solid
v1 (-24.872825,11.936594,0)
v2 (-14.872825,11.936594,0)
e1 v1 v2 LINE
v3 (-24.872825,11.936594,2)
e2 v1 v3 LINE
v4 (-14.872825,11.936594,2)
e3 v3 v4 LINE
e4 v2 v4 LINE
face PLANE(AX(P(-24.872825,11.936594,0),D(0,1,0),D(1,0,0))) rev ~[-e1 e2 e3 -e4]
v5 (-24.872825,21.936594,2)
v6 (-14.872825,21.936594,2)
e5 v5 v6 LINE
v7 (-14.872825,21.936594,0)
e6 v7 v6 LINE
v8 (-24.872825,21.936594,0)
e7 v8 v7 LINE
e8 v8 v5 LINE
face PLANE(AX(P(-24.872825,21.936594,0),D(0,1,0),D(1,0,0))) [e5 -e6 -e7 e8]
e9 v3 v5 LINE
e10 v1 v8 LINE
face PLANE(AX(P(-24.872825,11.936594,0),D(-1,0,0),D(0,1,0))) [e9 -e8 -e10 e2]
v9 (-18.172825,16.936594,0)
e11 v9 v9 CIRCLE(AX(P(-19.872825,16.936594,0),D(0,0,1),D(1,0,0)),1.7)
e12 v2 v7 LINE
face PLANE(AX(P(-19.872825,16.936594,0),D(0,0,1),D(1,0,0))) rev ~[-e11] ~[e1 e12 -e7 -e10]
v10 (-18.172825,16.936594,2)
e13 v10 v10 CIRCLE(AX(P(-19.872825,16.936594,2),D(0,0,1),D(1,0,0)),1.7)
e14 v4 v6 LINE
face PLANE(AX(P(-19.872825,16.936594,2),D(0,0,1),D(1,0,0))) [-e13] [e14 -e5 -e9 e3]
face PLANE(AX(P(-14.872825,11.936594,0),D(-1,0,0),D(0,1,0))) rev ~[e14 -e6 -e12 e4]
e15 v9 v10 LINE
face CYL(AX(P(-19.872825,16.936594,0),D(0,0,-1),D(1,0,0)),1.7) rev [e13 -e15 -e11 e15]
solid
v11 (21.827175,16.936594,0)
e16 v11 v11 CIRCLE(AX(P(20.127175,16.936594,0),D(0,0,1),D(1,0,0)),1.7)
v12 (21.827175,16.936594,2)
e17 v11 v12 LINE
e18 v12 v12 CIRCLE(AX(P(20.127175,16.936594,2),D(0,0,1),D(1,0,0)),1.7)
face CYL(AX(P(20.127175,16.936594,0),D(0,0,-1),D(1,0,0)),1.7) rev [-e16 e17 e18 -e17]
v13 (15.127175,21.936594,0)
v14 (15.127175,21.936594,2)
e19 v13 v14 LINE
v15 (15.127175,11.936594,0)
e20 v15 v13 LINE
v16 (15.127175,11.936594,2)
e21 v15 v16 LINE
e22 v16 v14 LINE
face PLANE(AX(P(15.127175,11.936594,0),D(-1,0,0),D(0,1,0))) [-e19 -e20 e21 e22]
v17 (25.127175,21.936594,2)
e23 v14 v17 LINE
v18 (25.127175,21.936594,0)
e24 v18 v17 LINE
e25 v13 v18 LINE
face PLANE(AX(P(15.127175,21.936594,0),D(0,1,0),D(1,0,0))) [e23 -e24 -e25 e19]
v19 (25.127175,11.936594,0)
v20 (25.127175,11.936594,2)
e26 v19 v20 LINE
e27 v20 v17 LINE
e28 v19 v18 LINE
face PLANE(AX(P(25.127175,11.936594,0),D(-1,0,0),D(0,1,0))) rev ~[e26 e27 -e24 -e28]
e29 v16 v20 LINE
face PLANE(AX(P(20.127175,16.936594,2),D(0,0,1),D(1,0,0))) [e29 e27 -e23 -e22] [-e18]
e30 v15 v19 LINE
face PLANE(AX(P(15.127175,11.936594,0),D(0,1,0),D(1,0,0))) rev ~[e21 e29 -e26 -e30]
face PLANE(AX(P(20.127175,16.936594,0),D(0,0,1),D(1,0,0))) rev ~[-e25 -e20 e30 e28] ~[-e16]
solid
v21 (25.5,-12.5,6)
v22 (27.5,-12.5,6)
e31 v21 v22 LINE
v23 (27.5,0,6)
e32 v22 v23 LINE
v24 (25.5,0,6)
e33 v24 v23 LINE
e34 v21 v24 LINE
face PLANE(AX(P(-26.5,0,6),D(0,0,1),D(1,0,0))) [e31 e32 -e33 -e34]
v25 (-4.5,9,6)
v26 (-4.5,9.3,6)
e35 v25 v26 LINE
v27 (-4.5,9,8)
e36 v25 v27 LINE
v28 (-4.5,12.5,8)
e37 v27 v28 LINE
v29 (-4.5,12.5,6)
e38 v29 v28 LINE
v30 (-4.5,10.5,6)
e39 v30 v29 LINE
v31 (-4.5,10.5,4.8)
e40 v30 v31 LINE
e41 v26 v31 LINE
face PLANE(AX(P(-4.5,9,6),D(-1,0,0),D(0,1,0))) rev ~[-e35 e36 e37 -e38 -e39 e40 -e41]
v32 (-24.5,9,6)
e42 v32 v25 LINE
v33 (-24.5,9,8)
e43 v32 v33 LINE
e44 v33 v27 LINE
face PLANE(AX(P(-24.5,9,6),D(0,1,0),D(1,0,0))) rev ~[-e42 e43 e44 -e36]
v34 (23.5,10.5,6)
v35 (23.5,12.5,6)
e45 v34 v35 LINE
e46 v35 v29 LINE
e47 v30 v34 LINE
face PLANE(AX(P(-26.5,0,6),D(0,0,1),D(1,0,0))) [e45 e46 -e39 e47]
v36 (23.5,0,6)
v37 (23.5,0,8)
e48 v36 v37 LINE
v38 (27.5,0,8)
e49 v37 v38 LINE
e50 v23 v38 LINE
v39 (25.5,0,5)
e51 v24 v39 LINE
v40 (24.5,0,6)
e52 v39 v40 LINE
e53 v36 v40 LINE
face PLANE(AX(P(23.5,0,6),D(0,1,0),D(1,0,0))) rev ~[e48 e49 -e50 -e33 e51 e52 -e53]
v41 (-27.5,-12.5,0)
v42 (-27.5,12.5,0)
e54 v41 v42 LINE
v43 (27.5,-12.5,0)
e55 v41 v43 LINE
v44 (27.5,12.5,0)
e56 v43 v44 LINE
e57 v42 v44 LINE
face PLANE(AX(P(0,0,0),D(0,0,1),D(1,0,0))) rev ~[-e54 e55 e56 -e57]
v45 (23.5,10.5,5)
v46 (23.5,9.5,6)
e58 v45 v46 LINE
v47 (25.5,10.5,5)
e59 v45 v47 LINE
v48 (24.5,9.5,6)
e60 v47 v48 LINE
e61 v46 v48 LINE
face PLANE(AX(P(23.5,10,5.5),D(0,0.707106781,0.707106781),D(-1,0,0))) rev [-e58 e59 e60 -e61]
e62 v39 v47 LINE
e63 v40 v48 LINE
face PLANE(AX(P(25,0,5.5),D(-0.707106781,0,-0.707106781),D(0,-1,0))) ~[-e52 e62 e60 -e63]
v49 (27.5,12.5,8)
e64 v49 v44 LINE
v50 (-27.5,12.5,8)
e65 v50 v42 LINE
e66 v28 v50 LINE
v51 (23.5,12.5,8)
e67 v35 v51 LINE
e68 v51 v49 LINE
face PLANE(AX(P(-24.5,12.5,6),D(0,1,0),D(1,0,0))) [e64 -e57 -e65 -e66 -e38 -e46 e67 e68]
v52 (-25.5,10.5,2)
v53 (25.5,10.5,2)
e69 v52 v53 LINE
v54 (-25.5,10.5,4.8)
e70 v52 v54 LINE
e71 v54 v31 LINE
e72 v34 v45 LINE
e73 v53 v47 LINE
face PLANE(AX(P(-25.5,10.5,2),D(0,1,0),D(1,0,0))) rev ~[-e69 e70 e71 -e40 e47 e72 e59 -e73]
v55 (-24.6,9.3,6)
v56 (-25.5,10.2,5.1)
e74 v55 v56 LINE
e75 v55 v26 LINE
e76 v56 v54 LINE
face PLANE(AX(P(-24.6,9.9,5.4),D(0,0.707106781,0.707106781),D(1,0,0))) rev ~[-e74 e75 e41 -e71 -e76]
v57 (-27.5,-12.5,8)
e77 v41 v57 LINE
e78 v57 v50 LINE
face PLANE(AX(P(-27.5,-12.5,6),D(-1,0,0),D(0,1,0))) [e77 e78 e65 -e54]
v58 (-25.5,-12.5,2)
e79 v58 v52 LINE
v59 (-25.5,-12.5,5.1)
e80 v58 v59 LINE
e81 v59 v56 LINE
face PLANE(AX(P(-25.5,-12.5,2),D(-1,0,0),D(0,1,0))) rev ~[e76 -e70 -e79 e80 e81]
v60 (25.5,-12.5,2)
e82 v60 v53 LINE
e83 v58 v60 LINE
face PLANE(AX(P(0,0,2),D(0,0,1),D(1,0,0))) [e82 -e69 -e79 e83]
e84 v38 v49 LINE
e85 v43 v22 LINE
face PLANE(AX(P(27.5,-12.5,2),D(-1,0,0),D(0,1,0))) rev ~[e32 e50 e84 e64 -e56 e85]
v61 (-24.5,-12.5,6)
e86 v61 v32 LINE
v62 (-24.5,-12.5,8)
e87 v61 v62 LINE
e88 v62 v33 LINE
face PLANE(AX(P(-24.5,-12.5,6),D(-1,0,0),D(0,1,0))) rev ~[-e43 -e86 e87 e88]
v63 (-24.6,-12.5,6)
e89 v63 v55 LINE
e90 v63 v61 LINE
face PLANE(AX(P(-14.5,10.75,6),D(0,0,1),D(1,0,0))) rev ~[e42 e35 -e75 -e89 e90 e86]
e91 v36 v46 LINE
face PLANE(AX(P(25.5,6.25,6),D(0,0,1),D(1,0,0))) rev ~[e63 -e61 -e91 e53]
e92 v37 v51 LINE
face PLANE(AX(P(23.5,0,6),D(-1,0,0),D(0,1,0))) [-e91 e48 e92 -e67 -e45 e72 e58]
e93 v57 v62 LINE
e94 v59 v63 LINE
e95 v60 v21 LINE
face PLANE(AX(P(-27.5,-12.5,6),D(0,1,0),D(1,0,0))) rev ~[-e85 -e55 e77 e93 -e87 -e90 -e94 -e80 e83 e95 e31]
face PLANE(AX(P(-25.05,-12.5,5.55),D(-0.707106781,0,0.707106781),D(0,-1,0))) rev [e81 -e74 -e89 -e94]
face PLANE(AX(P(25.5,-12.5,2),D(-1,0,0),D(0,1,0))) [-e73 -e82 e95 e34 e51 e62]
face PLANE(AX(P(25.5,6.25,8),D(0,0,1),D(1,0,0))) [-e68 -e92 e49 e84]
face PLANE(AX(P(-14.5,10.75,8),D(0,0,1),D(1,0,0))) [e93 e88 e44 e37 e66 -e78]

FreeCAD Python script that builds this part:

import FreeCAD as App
import Part
import Sketcher
from FreeCAD import Vector
Q = App.Units.Quantity


def edges_at(feature, points):
    """Names of the edges that pass closest to the given points."""
    edges = feature.Shape.Edges
    near = lambda p: min(range(len(edges)), key=lambda i: edges[i].distToShape(Part.Vertex(*p))[0])
    return sorted({f"Edge{near(p) + 1}" for p in points})

doc = App.newDocument("Part")
body = doc.addObject("PartDesign::Body", "Body")
body.AllowCompound = True

# Sketch on XY plane
sketch1 = body.newObject("Sketcher::SketchObject", "Sketch")
sketch1.AttachmentSupport = (doc.getObject("XY_Plane"), [""])
sketch1.MapMode = "FlatFace"
sketch1.addGeometry([
    Part.LineSegment(Vector(-24.9, 21.9, 0), Vector(-24.9, 11.9, 0)),  # 0
    Part.LineSegment(Vector(-24.9, 11.9, 0), Vector(-14.9, 11.9, 0)),  # 1
    Part.LineSegment(Vector(-14.9, 11.9, 0), Vector(-14.9, 21.9, 0)),  # 2
    Part.LineSegment(Vector(-14.9, 21.9, 0), Vector(-24.9, 21.9, 0)),  # 3
    Part.Circle(Vector(-19.9, 16.9, 0), Vector(0, 0, 1), 1.7),  # 4
    Part.LineSegment(Vector(15.1, 21.9, 0), Vector(15.1, 11.9, 0)),  # 5
    Part.LineSegment(Vector(15.1, 11.9, 0), Vector(25.1, 11.9, 0)),  # 6
    Part.LineSegment(Vector(25.1, 11.9, 0), Vector(25.1, 21.9, 0)),  # 7
    Part.LineSegment(Vector(25.1, 21.9, 0), Vector(15.1, 21.9, 0)),  # 8
    Part.Circle(Vector(20.1, 16.9, 0), Vector(0, 0, 1), 1.7),  # 9
], False)
sketch1.addConstraint([
    Sketcher.Constraint("Coincident", 0, 2, 1, 1),
    Sketcher.Constraint("Coincident", 1, 2, 2, 1),
    Sketcher.Constraint("Coincident", 2, 2, 3, 1),
    Sketcher.Constraint("Coincident", 3, 2, 0, 1),
    Sketcher.Constraint("Coincident", 5, 2, 6, 1),
    Sketcher.Constraint("Coincident", 6, 2, 7, 1),
    Sketcher.Constraint("Coincident", 7, 2, 8, 1),
    Sketcher.Constraint("Coincident", 8, 2, 5, 1),
    Sketcher.Constraint("Vertical", 0),
    Sketcher.Constraint("Horizontal", 1),
    Sketcher.Constraint("Vertical", 2),
    Sketcher.Constraint("Horizontal", 3),
    Sketcher.Constraint("Vertical", 5),
    Sketcher.Constraint("Horizontal", 6),
    Sketcher.Constraint("Vertical", 7),
    Sketcher.Constraint("Horizontal", 8),
    Sketcher.Constraint("Equal", 4, 9),
    Sketcher.Constraint("Horizontal", 4, 3, 9, 3),
    Sketcher.Constraint("Horizontal", 1, 2, 5, 2),
    Sketcher.Constraint("Horizontal", 3, 2, 7, 2),
    Sketcher.Constraint("Equal", 3, 6),
    Sketcher.Constraint("Equal", 8, 0),
    Sketcher.Constraint("Diameter", 4, Q("3.4 mm")),
    Sketcher.Constraint("DistanceX", 1, 1, 1, 2, Q("10 mm")),
    Sketcher.Constraint("DistanceX", 4, 3, 9, 3, Q("40 mm")),
    Sketcher.Constraint("DistanceX", 0, 2, 4, 3, Q("5 mm")),
    Sketcher.Constraint("DistanceY", 0, 2, 4, 3, Q("5 mm")),
    Sketcher.Constraint("DistanceX", 5, 2, 9, 3, Q("5 mm")),
    Sketcher.Constraint("DistanceX", 4, 3, -1, 1, Q("19.872825 mm")),
    Sketcher.Constraint("DistanceY", -1, 1, 4, 3, Q("16.936594 mm")),
])
pad1 = body.newObject("PartDesign::Pad", "Pad")
pad1.Profile = sketch1
pad1.Length = 2
body2 = doc.addObject("PartDesign::Body", "Body001")

# Sketch on XY plane
sketch2 = body2.newObject("Sketcher::SketchObject", "Sketch001")
sketch2.AttachmentSupport = (doc.getObject("XY_Plane001"), [""])
sketch2.MapMode = "FlatFace"
sketch2.addGeometry([
    Part.LineSegment(Vector(-28, 12, 0), Vector(-28, -12, 0)),
    Part.LineSegment(Vector(-28, -12, 0), Vector(28, -12, 0)),
    Part.LineSegment(Vector(28, -12, 0), Vector(28, 12, 0)),
    Part.LineSegment(Vector(28, 12, 0), Vector(-28, 12, 0)),
], False)
sketch2.addConstraint([
    Sketcher.Constraint("Coincident", 0, 2, 1, 1),
    Sketcher.Constraint("Coincident", 1, 2, 2, 1),
    Sketcher.Constraint("Coincident", 2, 2, 3, 1),
    Sketcher.Constraint("Coincident", 3, 2, 0, 1),
    Sketcher.Constraint("Vertical", 0),
    Sketcher.Constraint("Horizontal", 1),
    Sketcher.Constraint("Vertical", 2),
    Sketcher.Constraint("Horizontal", 3),
    Sketcher.Constraint("Symmetric", 0, 2, 2, 2, -1, 1),
    Sketcher.Constraint("DistanceX", 1, 1, 1, 2, Q("55 mm")),
    Sketcher.Constraint("DistanceY", 0, 2, 0, 1, Q("25 mm")),
])
pad2 = body2.newObject("PartDesign::Pad", "Pad001")
pad2.Profile = sketch2
pad2.Length = 2

# Sketch on XY plane
sketch3 = body2.newObject("Sketcher::SketchObject", "Sketch002")
sketch3.AttachmentSupport = (doc.getObject("XY_Plane001"), [""])
sketch3.MapMode = "FlatFace"
sketch3.AttachmentOffset = App.Placement(Vector(0, 0, 2), App.Rotation())
sketch3.addGeometry([
    Part.LineSegment(Vector(-27.5, 12.5, 0), Vector(-27.5, -12.5, 0)),  # 0
    Part.LineSegment(Vector(-27.5, -12.5, 0), Vector(-25.5, -12.5, 0)),  # 1
    Part.LineSegment(Vector(-25.5, -12.5, 0), Vector(-25.5, 10.5, 0)),  # 2
    Part.LineSegment(Vector(-25.5, 10.5, 0), Vector(25.5, 10.5, 0)),  # 3
    Part.LineSegment(Vector(25.5, 10.5, 0), Vector(25.5, -12.5, 0)),  # 4
    Part.LineSegment(Vector(25.5, -12.5, 0), Vector(27.5, -12.5, 0)),  # 5
    Part.LineSegment(Vector(27.5, -12.5, 0), Vector(27.5, 12.5, 0)),  # 6
    Part.LineSegment(Vector(27.5, 12.5, 0), Vector(-27.5, 12.5, 0)),  # 7
], False)
sketch3.addConstraint([
    Sketcher.Constraint("Coincident", 0, 2, 1, 1),
    Sketcher.Constraint("Coincident", 1, 2, 2, 1),
    Sketcher.Constraint("Coincident", 2, 2, 3, 1),
    Sketcher.Constraint("Coincident", 3, 2, 4, 1),
    Sketcher.Constraint("Coincident", 4, 2, 5, 1),
    Sketcher.Constraint("Coincident", 5, 2, 6, 1),
    Sketcher.Constraint("Coincident", 6, 2, 7, 1),
    Sketcher.Constraint("Coincident", 7, 2, 0, 1),
    Sketcher.Constraint("Vertical", 0),
    Sketcher.Constraint("Horizontal", 1),
    Sketcher.Constraint("Vertical", 2),
    Sketcher.Constraint("Horizontal", 3),
    Sketcher.Constraint("Vertical", 4),
    Sketcher.Constraint("Horizontal", 5),
    Sketcher.Constraint("Vertical", 6),
    Sketcher.Constraint("Horizontal", 7),
    Sketcher.Constraint("Symmetric", 0, 2, 6, 2, -1, 1),
    Sketcher.Constraint("Symmetric", 1, 2, 4, 2, -2),
    Sketcher.Constraint("DistanceX", 1, 1, 1, 2, Q("2 mm")),
    Sketcher.Constraint("DistanceX", 3, 1, 3, 2, Q("51 mm")),
    Sketcher.Constraint("DistanceY", 0, 2, 0, 1, Q("25 mm")),
    Sketcher.Constraint("DistanceY", 2, 1, 2, 2, Q("23 mm")),
])
pad3 = body2.newObject("PartDesign::Pad", "Pad002")
pad3.Profile = sketch3
pad3.Length = 4

# Sketch on XY plane
sketch4 = body2.newObject("Sketcher::SketchObject", "Sketch003")
sketch4.AttachmentSupport = (doc.getObject("XY_Plane001"), [""])
sketch4.MapMode = "FlatFace"
sketch4.AttachmentOffset = App.Placement(Vector(0, 0, 6), App.Rotation())
sketch4.addGeometry([
    Part.LineSegment(Vector(-27.5, 12.5, 0), Vector(-27.5, -12.5, 0)),  # 0
    Part.LineSegment(Vector(-27.5, -12.5, 0), Vector(-24.5, -12.5, 0)),  # 1
    Part.LineSegment(Vector(-24.5, -12.5, 0), Vector(-24.5, 12.5, 0)),  # 2
    Part.LineSegment(Vector(-24.5, 12.5, 0), Vector(-27.5, 12.5, 0)),  # 3
    Part.LineSegment(Vector(23.5, 12.5, 0), Vector(23.5, 0, 0)),  # 4
    Part.LineSegment(Vector(23.5, 0, 0), Vector(27.5, 0, 0)),  # 5
    Part.LineSegment(Vector(27.5, 0, 0), Vector(27.5, 12.5, 0)),  # 6
    Part.LineSegment(Vector(27.5, 12.5, 0), Vector(23.5, 12.5, 0)),  # 7
], False)
sketch4.addConstraint([
    Sketcher.Constraint("Coincident", 0, 2, 1, 1),
    Sketcher.Constraint("Coincident", 1, 2, 2, 1),
    Sketcher.Constraint("Coincident", 2, 2, 3, 1),
    Sketcher.Constraint("Coincident", 3, 2, 0, 1),
    Sketcher.Constraint("Coincident", 4, 2, 5, 1),
    Sketcher.Constraint("Coincident", 5, 2, 6, 1),
    Sketcher.Constraint("Coincident", 6, 2, 7, 1),
    Sketcher.Constraint("Coincident", 7, 2, 4, 1),
    Sketcher.Constraint("Vertical", 0),
    Sketcher.Constraint("Horizontal", 1),
    Sketcher.Constraint("Vertical", 2),
    Sketcher.Constraint("Horizontal", 3),
    Sketcher.Constraint("Vertical", 4),
    Sketcher.Constraint("Horizontal", 5),
    Sketcher.Constraint("Vertical", 6),
    Sketcher.Constraint("Horizontal", 7),
    Sketcher.Constraint("Symmetric", 0, 2, 6, 2, -1, 1),
    Sketcher.Constraint("PointOnObject", 4, 2, -1),
    Sketcher.Constraint("Horizontal", 3, 2, 6, 2),
    Sketcher.Constraint("DistanceX", 1, 1, 1, 2, Q("3 mm")),
    Sketcher.Constraint("DistanceX", 5, 1, 5, 2, Q("4 mm")),
    Sketcher.Constraint("DistanceY", 0, 2, 0, 1, Q("25 mm")),
    Sketcher.Constraint("DistanceX", 1, 2, 4, 2, Q("48 mm")),
])
pad4 = body2.newObject("PartDesign::Pad", "Pad003")
pad4.Profile = sketch4
pad4.Length = 2

# Sketch on XY plane
sketch5 = body2.newObject("Sketcher::SketchObject", "Sketch004")
sketch5.AttachmentSupport = (doc.getObject("XY_Plane001"), [""])
sketch5.MapMode = "FlatFace"
sketch5.AttachmentOffset = App.Placement(Vector(0, 0, 6), App.Rotation())
sketch5.addGeometry([
    Part.LineSegment(Vector(-24.5, 12.5, 0), Vector(-24.5, 9, 0)),
    Part.LineSegment(Vector(-24.5, 9, 0), Vector(-4.5, 9, 0)),
    Part.LineSegment(Vector(-4.5, 9, 0), Vector(-4.5, 12.5, 0)),
    Part.LineSegment(Vector(-4.5, 12.5, 0), Vector(-24.5, 12.5, 0)),
], False)
sketch5.addConstraint([
    Sketcher.Constraint("Coincident", 0, 2, 1, 1),
    Sketcher.Constraint("Coincident", 1, 2, 2, 1),
    Sketcher.Constraint("Coincident", 2, 2, 3, 1),
    Sketcher.Constraint("Coincident", 3, 2, 0, 1),
    Sketcher.Constraint("Vertical", 0),
    Sketcher.Constraint("Horizontal", 1),
    Sketcher.Constraint("Vertical", 2),
    Sketcher.Constraint("Horizontal", 3),
    Sketcher.Constraint("DistanceX", 1, 1, 1, 2, Q("20 mm")),
    Sketcher.Constraint("DistanceY", 0, 2, 0, 1, Q("3.5 mm")),
    Sketcher.Constraint("DistanceY", -1, 1, 0, 2, Q("9 mm")),
    Sketcher.Constraint("DistanceX", 0, 2, -1, 1, Q("24.5 mm")),
])
pad5 = body2.newObject("PartDesign::Pad", "Pad004")
pad5.Profile = sketch5
pad5.Length = 2
doc.recompute()

chamfer = body2.newObject("PartDesign::Chamfer", "Chamfer")
chamfer.Base = (pad5, edges_at(pad5, [(-25.5, -1, 6)]))
chamfer.Size = 0.9
doc.recompute()

chamfer2 = body2.newObject("PartDesign::Chamfer", "Chamfer001")
chamfer2.Base = (chamfer, edges_at(chamfer, [(-14.55, 10.5, 6)]))
chamfer2.Size = 1.2
doc.recompute()

chamfer3 = body2.newObject("PartDesign::Chamfer", "Chamfer002")
chamfer3.Base = (chamfer2, edges_at(chamfer2, [(25.5, 5.25, 6), (24.5, 10.5, 6)]))
chamfer3.Size = 1

doc.recompute()
